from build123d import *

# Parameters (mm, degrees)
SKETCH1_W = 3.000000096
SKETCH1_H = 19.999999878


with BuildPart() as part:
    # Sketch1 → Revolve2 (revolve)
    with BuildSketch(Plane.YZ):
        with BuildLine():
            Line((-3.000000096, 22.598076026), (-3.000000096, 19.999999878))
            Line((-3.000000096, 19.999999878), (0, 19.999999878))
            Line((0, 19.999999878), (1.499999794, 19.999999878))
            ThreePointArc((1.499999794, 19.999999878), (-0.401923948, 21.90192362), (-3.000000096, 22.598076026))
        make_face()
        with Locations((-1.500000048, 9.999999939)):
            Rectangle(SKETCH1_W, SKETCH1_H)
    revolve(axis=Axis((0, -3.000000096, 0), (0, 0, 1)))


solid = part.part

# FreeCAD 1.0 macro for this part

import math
import FreeCAD as App
import Part
import Sketcher
from FreeCAD import Vector
Q = App.Units.Quantity

doc = App.newDocument("Part")
params = doc.addObject("Spreadsheet::Sheet", "Params")
for row, (alias, value) in enumerate([
    ("sketch1_width", "3 mm"),
    ("sketch1_height", "20 mm"),
    ("sketch1_width2", "1.5 mm"),
    ("revolution_angle", "360 deg"),
], start=1):
    params.set(f"A{row}", alias)
    params.set(f"B{row}", "=" + value)
    params.setAlias(f"B{row}", alias)

body = doc.addObject("PartDesign::Body", "Body")

sketch1 = body.newObject("Sketcher::SketchObject", "Sketch")
sketch1.AttachmentSupport = (doc.getObject("YZ_Plane"), [""])
sketch1.MapMode = "FlatFace"
sketch1.addGeometry([
    Part.LineSegment(Vector(-3, 22.6, 0), Vector(-3, 0, 0)),
    Part.LineSegment(Vector(-3, 0, 0), Vector(0, 0, 0)),
    Part.LineSegment(Vector(0, 0, 0), Vector(0, 20, 0)),
    Part.LineSegment(Vector(0, 20, 0), Vector(1.5, 20, 0)),
    Part.ArcOfCircle(Part.Circle(Vector(-3, 17.4, 0), Vector(0, 0, 1), 5.2), math.radians(30), math.radians(90)),
], False)
sketch1.addGeometry(Part.LineSegment(Vector(-3, 0, 0), Vector(-3, 22.6, 0)), True)
sketch1.addConstraint([
    Sketcher.Constraint("Coincident", 0, 2, 1, 1),
    Sketcher.Constraint("Coincident", 1, 2, 2, 1),
    Sketcher.Constraint("Coincident", 2, 2, 3, 1),
    Sketcher.Constraint("Coincident", 3, 2, 4, 1),
    Sketcher.Constraint("Coincident", 4, 2, 0, 1),
    Sketcher.Constraint("Vertical", 0),
    Sketcher.Constraint("Horizontal", 1),
    Sketcher.Constraint("Vertical", 2),
    Sketcher.Constraint("Horizontal", 3),
    Sketcher.Constraint("Vertical", 5),
    Sketcher.Constraint("Coincident", 1, 2, -1, 1),
    Sketcher.Constraint("Coincident", 5, 1, 0, 2),
    Sketcher.Constraint("Vertical", 4, 3, 0, 2),
    Sketcher.Constraint("Equal", 0, 5),
    Sketcher.Constraint("DistanceX", 1, 1, 1, 2, Q("3 mm")),
    Sketcher.Constraint("DistanceY", 2, 1, 2, 2, Q("20 mm")),
    Sketcher.Constraint("DistanceX", 3, 1, 3, 2, Q("1.5 mm")),
    Sketcher.Constraint("Radius", 4, Q("5.196152 mm")),
])
sketch1.setExpression("Constraints[14]", "Params.sketch1_width")
sketch1.setExpression("Constraints[15]", "Params.sketch1_height")
sketch1.setExpression("Constraints[16]", "Params.sketch1_width2")
revolution = body.newObject("PartDesign::Revolution", "Revolution")
revolution.Profile = sketch1
revolution.ReferenceAxis = (sketch1, ["Axis0"])
revolution.setExpression("Angle", "Params.revolution_angle")

doc.recompute()
